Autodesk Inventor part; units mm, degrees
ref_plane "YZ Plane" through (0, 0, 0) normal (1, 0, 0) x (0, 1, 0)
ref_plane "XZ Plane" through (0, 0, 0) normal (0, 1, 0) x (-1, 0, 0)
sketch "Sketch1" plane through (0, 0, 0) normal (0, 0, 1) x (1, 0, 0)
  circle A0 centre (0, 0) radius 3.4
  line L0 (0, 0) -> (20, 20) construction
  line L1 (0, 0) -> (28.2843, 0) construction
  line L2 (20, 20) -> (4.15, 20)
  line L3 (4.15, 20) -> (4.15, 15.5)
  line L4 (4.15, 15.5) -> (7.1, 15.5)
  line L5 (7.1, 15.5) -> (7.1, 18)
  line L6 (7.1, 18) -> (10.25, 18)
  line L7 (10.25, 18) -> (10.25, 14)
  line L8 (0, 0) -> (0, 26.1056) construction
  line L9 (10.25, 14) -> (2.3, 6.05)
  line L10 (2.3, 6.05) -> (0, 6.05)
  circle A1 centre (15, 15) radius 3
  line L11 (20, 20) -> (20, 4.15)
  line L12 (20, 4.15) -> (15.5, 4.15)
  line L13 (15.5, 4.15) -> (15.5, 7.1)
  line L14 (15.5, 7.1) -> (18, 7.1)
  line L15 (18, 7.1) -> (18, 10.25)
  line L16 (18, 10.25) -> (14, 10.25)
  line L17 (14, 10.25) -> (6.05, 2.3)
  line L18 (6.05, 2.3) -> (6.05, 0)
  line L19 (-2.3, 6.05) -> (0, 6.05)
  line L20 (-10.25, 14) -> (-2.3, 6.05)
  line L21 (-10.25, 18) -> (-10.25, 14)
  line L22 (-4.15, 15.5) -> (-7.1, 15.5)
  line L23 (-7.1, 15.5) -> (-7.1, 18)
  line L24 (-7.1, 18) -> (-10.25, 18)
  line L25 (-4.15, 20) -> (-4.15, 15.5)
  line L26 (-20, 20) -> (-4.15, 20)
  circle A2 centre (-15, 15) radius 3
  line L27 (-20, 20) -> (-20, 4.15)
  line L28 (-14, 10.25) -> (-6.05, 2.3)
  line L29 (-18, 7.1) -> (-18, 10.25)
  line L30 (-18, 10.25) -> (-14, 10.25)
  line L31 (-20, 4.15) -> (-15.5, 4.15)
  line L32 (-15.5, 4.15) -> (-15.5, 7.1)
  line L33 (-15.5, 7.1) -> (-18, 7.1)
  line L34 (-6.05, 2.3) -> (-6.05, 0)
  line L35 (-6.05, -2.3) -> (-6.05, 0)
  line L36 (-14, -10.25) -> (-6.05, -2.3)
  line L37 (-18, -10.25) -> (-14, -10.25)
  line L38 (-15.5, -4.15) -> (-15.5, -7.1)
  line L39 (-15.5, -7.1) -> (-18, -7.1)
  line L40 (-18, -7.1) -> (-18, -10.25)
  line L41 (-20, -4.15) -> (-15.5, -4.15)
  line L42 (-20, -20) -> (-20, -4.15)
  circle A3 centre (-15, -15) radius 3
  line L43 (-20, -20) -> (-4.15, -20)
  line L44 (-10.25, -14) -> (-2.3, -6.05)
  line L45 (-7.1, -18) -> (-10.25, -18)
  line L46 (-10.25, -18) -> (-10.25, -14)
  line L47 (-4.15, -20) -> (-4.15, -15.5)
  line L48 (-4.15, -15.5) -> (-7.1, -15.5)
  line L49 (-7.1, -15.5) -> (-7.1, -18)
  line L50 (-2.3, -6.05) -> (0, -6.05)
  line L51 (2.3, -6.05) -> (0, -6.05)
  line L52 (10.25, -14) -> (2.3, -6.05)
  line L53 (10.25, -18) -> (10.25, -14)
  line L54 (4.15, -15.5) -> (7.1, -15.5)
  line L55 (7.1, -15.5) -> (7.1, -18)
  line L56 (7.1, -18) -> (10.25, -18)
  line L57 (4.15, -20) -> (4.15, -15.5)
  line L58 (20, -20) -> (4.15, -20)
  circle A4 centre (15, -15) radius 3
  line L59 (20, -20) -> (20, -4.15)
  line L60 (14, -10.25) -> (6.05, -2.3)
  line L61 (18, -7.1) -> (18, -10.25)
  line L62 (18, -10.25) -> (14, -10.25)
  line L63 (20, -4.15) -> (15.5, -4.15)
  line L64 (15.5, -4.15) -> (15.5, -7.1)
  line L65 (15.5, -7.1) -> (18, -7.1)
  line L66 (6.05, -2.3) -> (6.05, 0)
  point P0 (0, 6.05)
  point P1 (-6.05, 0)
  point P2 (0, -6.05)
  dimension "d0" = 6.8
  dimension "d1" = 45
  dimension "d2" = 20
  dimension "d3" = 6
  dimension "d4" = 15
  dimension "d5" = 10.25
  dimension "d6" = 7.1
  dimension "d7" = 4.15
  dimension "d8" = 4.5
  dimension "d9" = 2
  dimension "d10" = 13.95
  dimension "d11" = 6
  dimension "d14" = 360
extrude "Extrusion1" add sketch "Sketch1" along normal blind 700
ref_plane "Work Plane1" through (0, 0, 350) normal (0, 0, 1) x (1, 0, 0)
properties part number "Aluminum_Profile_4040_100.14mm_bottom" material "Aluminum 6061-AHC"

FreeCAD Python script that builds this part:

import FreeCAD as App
import Part
import Sketcher

V = App.Vector
Q = App.Units.Quantity


def add_polygon(sketch, points):
    """Adds a closed chain of lines whose ends are joined by coincident constraints."""
    first, n = sketch.GeometryCount, len(points)
    for a, b in zip(points, points[1:] + points[:1]):
        sketch.addGeometry(Part.LineSegment(App.Vector(*a, 0), App.Vector(*b, 0)), False)
    for i in range(n):
        sketch.addConstraint(Sketcher.Constraint("Coincident", first + i, 2, first + (i + 1) % n, 1))

doc = App.newDocument("Part")
params = doc.addObject("Spreadsheet::Sheet", "Params")
for row, (alias, value) in enumerate([
    ("sketch1_diameter", "6 mm"),
    ("sketch1_diameter2", "6.8 mm"),
    ("sketch1_width", "4.5 mm"),
    ("sketch1_width2", "4 mm"),
    ("sketch1_width3", "4.6 mm"),
    ("pad1_length", "700 mm"),
], start=1):
    params.set(f"A{row}", alias)
    params.set(f"B{row}", "=" + value)
    params.setAlias(f"B{row}", alias)

body = doc.addObject("PartDesign::Body", "Body")

sketch1 = body.newObject("Sketcher::SketchObject", "Sketch")
sketch1.AttachmentSupport = (doc.getObject("XY_Plane"), [""])
sketch1.MapMode = "FlatFace"
add_polygon(sketch1, [(20, 4.15), (20, 20), (4.15, 20), (4.15, 15.5), (7.1, 15.5), (7.1, 18), (10.25, 18), (10.25, 14), (2.3, 6.05), (-2.3, 6.05), (-10.25, 14), (-10.25, 18), (-7.1, 18), (-7.1, 15.5), (-4.15, 15.5), (-4.15, 20), (-20, 20), (-20, 4.15), (-15.5, 4.15), (-15.5, 7.1), (-18, 7.1), (-18, 10.25), (-14, 10.25), (-6.05, 2.3), (-6.05, -2.3), (-14, -10.25), (-18, -10.25), (-18, -7.1), (-15.5, -7.1), (-15.5, -4.15), (-20, -4.15), (-20, -20), (-4.15, -20), (-4.15, -15.5), (-7.1, -15.5), (-7.1, -18), (-10.25, -18), (-10.25, -14), (-2.3, -6.05), (2.3, -6.05), (10.25, -14), (10.25, -18), (7.1, -18), (7.1, -15.5), (4.15, -15.5), (4.15, -20), (20, -20), (20, -4.15), (15.5, -4.15), (15.5, -7.1), (18, -7.1), (18, -10.25), (14, -10.25), (6.05, -2.3), (6.05, 2.3), (14, 10.25), (18, 10.25), (18, 7.1), (15.5, 7.1), (15.5, 4.15)])
sketch1.addGeometry(Part.Circle(V(-15, -15, 0), V(0, 0, 1), 3), False)
sketch1.addGeometry(Part.Circle(V(15, -15, 0), V(0, 0, 1), 3), False)
sketch1.addGeometry(Part.Circle(V(-15, 15, 0), V(0, 0, 1), 3), False)
sketch1.addGeometry(Part.Circle(V(0, 0, 0), V(0, 0, 1), 3.4), False)
sketch1.addGeometry(Part.Circle(V(15, 15, 0), V(0, 0, 1), 3), False)
sketch1.addConstraint(Sketcher.Constraint("Vertical", 0))
sketch1.addConstraint(Sketcher.Constraint("Horizontal", 1))
sketch1.addConstraint(Sketcher.Constraint("Vertical", 2))
sketch1.addConstraint(Sketcher.Constraint("Horizontal", 3))
sketch1.addConstraint(Sketcher.Constraint("Vertical", 4))
sketch1.addConstraint(Sketcher.Constraint("Horizontal", 5))
sketch1.addConstraint(Sketcher.Constraint("Vertical", 6))
sketch1.addConstraint(Sketcher.Constraint("Horizontal", 8))
sketch1.addConstraint(Sketcher.Constraint("Vertical", 10))
sketch1.addConstraint(Sketcher.Constraint("Horizontal", 11))
sketch1.addConstraint(Sketcher.Constraint("Vertical", 12))
sketch1.addConstraint(Sketcher.Constraint("Horizontal", 13))
sketch1.addConstraint(Sketcher.Constraint("Vertical", 14))
sketch1.addConstraint(Sketcher.Constraint("Horizontal", 15))
sketch1.addConstraint(Sketcher.Constraint("Vertical", 16))
sketch1.addConstraint(Sketcher.Constraint("Horizontal", 17))
sketch1.addConstraint(Sketcher.Constraint("Vertical", 18))
sketch1.addConstraint(Sketcher.Constraint("Horizontal", 19))
sketch1.addConstraint(Sketcher.Constraint("Vertical", 20))
sketch1.addConstraint(Sketcher.Constraint("Horizontal", 21))
sketch1.addConstraint(Sketcher.Constraint("Vertical", 23))
sketch1.addConstraint(Sketcher.Constraint("Horizontal", 25))
sketch1.addConstraint(Sketcher.Constraint("Vertical", 26))
sketch1.addConstraint(Sketcher.Constraint("Horizontal", 27))
sketch1.addConstraint(Sketcher.Constraint("Vertical", 28))
sketch1.addConstraint(Sketcher.Constraint("Horizontal", 29))
sketch1.addConstraint(Sketcher.Constraint("Vertical", 30))
sketch1.addConstraint(Sketcher.Constraint("Horizontal", 31))
sketch1.addConstraint(Sketcher.Constraint("Vertical", 32))
sketch1.addConstraint(Sketcher.Constraint("Horizontal", 33))
sketch1.addConstraint(Sketcher.Constraint("Vertical", 34))
sketch1.addConstraint(Sketcher.Constraint("Horizontal", 35))
sketch1.addConstraint(Sketcher.Constraint("Vertical", 36))
sketch1.addConstraint(Sketcher.Constraint("Horizontal", 38))
sketch1.addConstraint(Sketcher.Constraint("Vertical", 40))
sketch1.addConstraint(Sketcher.Constraint("Horizontal", 41))
sketch1.addConstraint(Sketcher.Constraint("Vertical", 42))
sketch1.addConstraint(Sketcher.Constraint("Horizontal", 43))
sketch1.addConstraint(Sketcher.Constraint("Vertical", 44))
sketch1.addConstraint(Sketcher.Constraint("Horizontal", 45))
sketch1.addConstraint(Sketcher.Constraint("Vertical", 46))
sketch1.addConstraint(Sketcher.Constraint("Horizontal", 47))
sketch1.addConstraint(Sketcher.Constraint("Vertical", 48))
sketch1.addConstraint(Sketcher.Constraint("Horizontal", 49))
sketch1.addConstraint(Sketcher.Constraint("Vertical", 50))
sketch1.addConstraint(Sketcher.Constraint("Horizontal", 51))
sketch1.addConstraint(Sketcher.Constraint("Vertical", 53))
sketch1.addConstraint(Sketcher.Constraint("Horizontal", 55))
sketch1.addConstraint(Sketcher.Constraint("Vertical", 56))
sketch1.addConstraint(Sketcher.Constraint("Horizontal", 57))
sketch1.addConstraint(Sketcher.Constraint("Vertical", 58))
sketch1.addConstraint(Sketcher.Constraint("Horizontal", 59))
sketch1.addConstraint(Sketcher.Constraint("Coincident", 63, 3, -1, 1))
sketch1.addConstraint(Sketcher.Constraint("Equal", 60, 61))
sketch1.addConstraint(Sketcher.Constraint("Equal", 61, 62))
sketch1.addConstraint(Sketcher.Constraint("Equal", 62, 64))
sketch1.addConstraint(Sketcher.Constraint("Symmetric", 61, 3, 62, 3, -1, 1))
sketch1.addConstraint(Sketcher.Constraint("Symmetric", 60, 3, 64, 3, -1, 1))
sketch1.addConstraint(Sketcher.Constraint("Symmetric", 0, 2, 30, 2, -1, 1))
sketch1.addConstraint(Sketcher.Constraint("Symmetric", 2, 2, 32, 2, -1, 1))
sketch1.addConstraint(Sketcher.Constraint("Symmetric", 4, 2, 34, 2, -1, 1))
sketch1.addConstraint(Sketcher.Constraint("Symmetric", 6, 2, 36, 2, -1, 1))
sketch1.addConstraint(Sketcher.Constraint("Symmetric", 7, 2, 37, 2, -1, 1))
sketch1.addConstraint(Sketcher.Constraint("Symmetric", 9, 2, 39, 2, -1, 1))
sketch1.addConstraint(Sketcher.Constraint("Symmetric", 11, 2, 41, 2, -1, 1))
sketch1.addConstraint(Sketcher.Constraint("Symmetric", 13, 2, 43, 2, -1, 1))
sketch1.addConstraint(Sketcher.Constraint("Symmetric", 15, 2, 45, 2, -1, 1))
sketch1.addConstraint(Sketcher.Constraint("Symmetric", 17, 2, 47, 2, -1, 1))
sketch1.addConstraint(Sketcher.Constraint("Symmetric", 19, 2, 49, 2, -1, 1))
sketch1.addConstraint(Sketcher.Constraint("Symmetric", 21, 2, 51, 2, -1, 1))
sketch1.addConstraint(Sketcher.Constraint("Symmetric", 22, 2, 52, 2, -1, 1))
sketch1.addConstraint(Sketcher.Constraint("Symmetric", 24, 2, 54, 2, -1, 1))
sketch1.addConstraint(Sketcher.Constraint("Symmetric", 26, 2, 56, 2, -1, 1))
sketch1.addConstraint(Sketcher.Constraint("Symmetric", 28, 2, 58, 2, -1, 1))
sketch1.addConstraint(Sketcher.Constraint("Symmetric", 60, 3, 61, 3, -2))
sketch1.addConstraint(Sketcher.Constraint("Symmetric", 6, 2, 9, 2, -2))
sketch1.addConstraint(Sketcher.Constraint("Symmetric", 4, 2, 11, 2, -2))
sketch1.addConstraint(Sketcher.Constraint("Symmetric", 2, 2, 13, 2, -2))
sketch1.addConstraint(Sketcher.Constraint("Symmetric", 0, 2, 15, 2, -2))
sketch1.addConstraint(Sketcher.Constraint("Symmetric", 28, 2, 47, 2, -2))
sketch1.addConstraint(Sketcher.Constraint("Symmetric", 26, 2, 49, 2, -2))
sketch1.addConstraint(Sketcher.Constraint("Symmetric", 24, 2, 51, 2, -2))
sketch1.addConstraint(Sketcher.Constraint("Perpendicular", 7, 9))
sketch1.addConstraint(Sketcher.Constraint("Parallel", 9, 22))
sketch1.addConstraint(Sketcher.Constraint("Perpendicular", 22, 24))
sketch1.addConstraint(Sketcher.Constraint("Perpendicular", 37, 39))
sketch1.addConstraint(Sketcher.Constraint("Perpendicular", 52, 54))
sketch1.addConstraint(Sketcher.Constraint("Horizontal", 23, 2, 52, 2))
sketch1.addConstraint(Sketcher.Constraint("Equal", 45, 0))
sketch1.addConstraint(Sketcher.Constraint("Equal", 59, 2))
sketch1.addConstraint(Sketcher.Constraint("Equal", 57, 4))
sketch1.addConstraint(Sketcher.Constraint("Equal", 55, 6))
sketch1.addConstraint(Sketcher.Constraint("Equal", 43, 18))
sketch1.addConstraint(Sketcher.Constraint("Equal", 41, 20))
sketch1.addConstraint(Sketcher.Constraint("Equal", 38, 23))
sketch1.addConstraint(Sketcher.Constraint("Equal", 9, 22))
sketch1.addConstraint(Sketcher.Constraint("Diameter", 60, Q("6 mm")))
sketch1.addConstraint(Sketcher.Constraint("Diameter", 63, Q("6.8 mm")))
sketch1.addConstraint(Sketcher.Constraint("DistanceX", 17, 1, 17, 2, Q("4.5 mm")))
sketch1.addConstraint(Sketcher.Constraint("DistanceX", 60, 3, -1, 1, Q("15 mm")))
sketch1.addConstraint(Sketcher.Constraint("DistanceY", 60, 3, -1, 1, Q("15 mm")))
sketch1.addConstraint(Sketcher.Constraint("DistanceX", -1, 1, 0, 2, Q("20 mm")))
sketch1.addConstraint(Sketcher.Constraint("DistanceX", -1, 1, 3, 2, Q("7.1 mm")))
sketch1.addConstraint(Sketcher.Constraint("DistanceX", 21, 1, 21, 2, Q("4 mm")))
sketch1.addConstraint(Sketcher.Constraint("DistanceX", -1, 1, 1, 2, Q("4.15 mm")))
sketch1.addConstraint(Sketcher.Constraint("DistanceX", -1, 1, 5, 2, Q("10.25 mm")))
sketch1.addConstraint(Sketcher.Constraint("DistanceX", 8, 2, 8, 1, Q("4.6 mm")))
sketch1.addConstraint(Sketcher.Constraint("DistanceX", 19, 2, 19, 1, Q("2.5 mm")))
sketch1.setExpression("Constraints[156]", "Params.sketch1_diameter")
sketch1.setExpression("Constraints[157]", "Params.sketch1_diameter2")
sketch1.setExpression("Constraints[158]", "Params.sketch1_width")
sketch1.setExpression("Constraints[163]", "Params.sketch1_width2")
sketch1.setExpression("Constraints[166]", "Params.sketch1_width3")
pad1 = body.newObject("PartDesign::Pad", "Pad")
pad1.Profile = sketch1
pad1.setExpression("Length", "Params.pad1_length")

doc.recompute()
